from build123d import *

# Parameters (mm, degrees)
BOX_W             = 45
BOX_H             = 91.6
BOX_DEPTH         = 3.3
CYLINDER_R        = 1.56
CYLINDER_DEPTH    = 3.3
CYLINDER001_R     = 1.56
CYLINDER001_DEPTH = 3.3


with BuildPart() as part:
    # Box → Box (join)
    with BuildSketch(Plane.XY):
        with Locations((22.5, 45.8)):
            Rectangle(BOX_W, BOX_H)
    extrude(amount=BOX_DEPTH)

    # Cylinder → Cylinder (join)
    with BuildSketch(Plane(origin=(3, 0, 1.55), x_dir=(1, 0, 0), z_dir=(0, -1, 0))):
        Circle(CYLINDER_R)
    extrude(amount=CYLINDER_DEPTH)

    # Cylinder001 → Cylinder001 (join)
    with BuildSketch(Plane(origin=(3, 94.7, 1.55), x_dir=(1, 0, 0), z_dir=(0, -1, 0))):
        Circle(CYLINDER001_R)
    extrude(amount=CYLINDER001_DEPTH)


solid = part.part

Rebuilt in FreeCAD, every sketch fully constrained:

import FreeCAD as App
import Part
import Sketcher
Q = App.Units.Quantity


def add_polygon(sketch, points):
    """Adds a closed chain of lines whose ends are joined by coincident constraints."""
    first, n = sketch.GeometryCount, len(points)
    for a, b in zip(points, points[1:] + points[:1]):
        sketch.addGeometry(Part.LineSegment(App.Vector(*a, 0), App.Vector(*b, 0)), False)
    for i in range(n):
        sketch.addConstraint(Sketcher.Constraint("Coincident", first + i, 2, first + (i + 1) % n, 1))

doc = App.newDocument("Part")
body = doc.addObject("PartDesign::Body", "Body")

sketch1 = body.newObject("Sketcher::SketchObject", "Sketch")
sketch1.AttachmentSupport = (doc.getObject("XY_Plane"), [""])
sketch1.MapMode = "FlatFace"
add_polygon(sketch1, [(0, 92), (0, 0), (45, 0), (45, 92)])
sketch1.addConstraint(Sketcher.Constraint("Vertical", 0))
sketch1.addConstraint(Sketcher.Constraint("Horizontal", 1))
sketch1.addConstraint(Sketcher.Constraint("Vertical", 2))
sketch1.addConstraint(Sketcher.Constraint("Horizontal", 3))
sketch1.addConstraint(Sketcher.Constraint("Coincident", 0, 2, -1, 1))
sketch1.addConstraint(Sketcher.Constraint("DistanceX", 1, 1, 1, 2, Q("45 mm")))
sketch1.addConstraint(Sketcher.Constraint("DistanceY", 0, 2, 0, 1, Q("91.6 mm")))
pad1 = body.newObject("PartDesign::Pad", "Pad")
pad1.Profile = sketch1
pad1.Length = 3.3

sketch2 = body.newObject("Sketcher::SketchObject", "Sketch001")
sketch2.AttachmentSupport = (doc.getObject("XZ_Plane"), [""])
sketch2.MapMode = "FlatFace"
sketch2.addGeometry(Part.Circle(App.Vector(3, 1.6, 0), App.Vector(0, 0, 1), 1.6), False)
sketch2.addConstraint(Sketcher.Constraint("Diameter", 0, Q("3.12 mm")))
sketch2.addConstraint(Sketcher.Constraint("DistanceX", -1, 1, 0, 3, Q("3 mm")))
sketch2.addConstraint(Sketcher.Constraint("DistanceY", -1, 1, 0, 3, Q("1.55 mm")))
pad2 = body.newObject("PartDesign::Pad", "Pad001")
pad2.Profile = sketch2
pad2.Length = 3.3

sketch3 = body.newObject("Sketcher::SketchObject", "Sketch002")
sketch3.AttachmentSupport = (doc.getObject("XZ_Plane"), [""])
sketch3.MapMode = "FlatFace"
sketch3.AttachmentOffset = App.Placement(App.Vector(0, 0, -94.7), App.Rotation())
sketch3.addGeometry(Part.Circle(App.Vector(3, 1.6, 0), App.Vector(0, 0, 1), 1.6), False)
sketch3.addConstraint(Sketcher.Constraint("Diameter", 0, Q("3.12 mm")))
sketch3.addConstraint(Sketcher.Constraint("DistanceX", -1, 1, 0, 3, Q("3 mm")))
sketch3.addConstraint(Sketcher.Constraint("DistanceY", -1, 1, 0, 3, Q("1.55 mm")))
pad3 = body.newObject("PartDesign::Pad", "Pad002")
pad3.Profile = sketch3
pad3.Length = 3.3

doc.recompute()
